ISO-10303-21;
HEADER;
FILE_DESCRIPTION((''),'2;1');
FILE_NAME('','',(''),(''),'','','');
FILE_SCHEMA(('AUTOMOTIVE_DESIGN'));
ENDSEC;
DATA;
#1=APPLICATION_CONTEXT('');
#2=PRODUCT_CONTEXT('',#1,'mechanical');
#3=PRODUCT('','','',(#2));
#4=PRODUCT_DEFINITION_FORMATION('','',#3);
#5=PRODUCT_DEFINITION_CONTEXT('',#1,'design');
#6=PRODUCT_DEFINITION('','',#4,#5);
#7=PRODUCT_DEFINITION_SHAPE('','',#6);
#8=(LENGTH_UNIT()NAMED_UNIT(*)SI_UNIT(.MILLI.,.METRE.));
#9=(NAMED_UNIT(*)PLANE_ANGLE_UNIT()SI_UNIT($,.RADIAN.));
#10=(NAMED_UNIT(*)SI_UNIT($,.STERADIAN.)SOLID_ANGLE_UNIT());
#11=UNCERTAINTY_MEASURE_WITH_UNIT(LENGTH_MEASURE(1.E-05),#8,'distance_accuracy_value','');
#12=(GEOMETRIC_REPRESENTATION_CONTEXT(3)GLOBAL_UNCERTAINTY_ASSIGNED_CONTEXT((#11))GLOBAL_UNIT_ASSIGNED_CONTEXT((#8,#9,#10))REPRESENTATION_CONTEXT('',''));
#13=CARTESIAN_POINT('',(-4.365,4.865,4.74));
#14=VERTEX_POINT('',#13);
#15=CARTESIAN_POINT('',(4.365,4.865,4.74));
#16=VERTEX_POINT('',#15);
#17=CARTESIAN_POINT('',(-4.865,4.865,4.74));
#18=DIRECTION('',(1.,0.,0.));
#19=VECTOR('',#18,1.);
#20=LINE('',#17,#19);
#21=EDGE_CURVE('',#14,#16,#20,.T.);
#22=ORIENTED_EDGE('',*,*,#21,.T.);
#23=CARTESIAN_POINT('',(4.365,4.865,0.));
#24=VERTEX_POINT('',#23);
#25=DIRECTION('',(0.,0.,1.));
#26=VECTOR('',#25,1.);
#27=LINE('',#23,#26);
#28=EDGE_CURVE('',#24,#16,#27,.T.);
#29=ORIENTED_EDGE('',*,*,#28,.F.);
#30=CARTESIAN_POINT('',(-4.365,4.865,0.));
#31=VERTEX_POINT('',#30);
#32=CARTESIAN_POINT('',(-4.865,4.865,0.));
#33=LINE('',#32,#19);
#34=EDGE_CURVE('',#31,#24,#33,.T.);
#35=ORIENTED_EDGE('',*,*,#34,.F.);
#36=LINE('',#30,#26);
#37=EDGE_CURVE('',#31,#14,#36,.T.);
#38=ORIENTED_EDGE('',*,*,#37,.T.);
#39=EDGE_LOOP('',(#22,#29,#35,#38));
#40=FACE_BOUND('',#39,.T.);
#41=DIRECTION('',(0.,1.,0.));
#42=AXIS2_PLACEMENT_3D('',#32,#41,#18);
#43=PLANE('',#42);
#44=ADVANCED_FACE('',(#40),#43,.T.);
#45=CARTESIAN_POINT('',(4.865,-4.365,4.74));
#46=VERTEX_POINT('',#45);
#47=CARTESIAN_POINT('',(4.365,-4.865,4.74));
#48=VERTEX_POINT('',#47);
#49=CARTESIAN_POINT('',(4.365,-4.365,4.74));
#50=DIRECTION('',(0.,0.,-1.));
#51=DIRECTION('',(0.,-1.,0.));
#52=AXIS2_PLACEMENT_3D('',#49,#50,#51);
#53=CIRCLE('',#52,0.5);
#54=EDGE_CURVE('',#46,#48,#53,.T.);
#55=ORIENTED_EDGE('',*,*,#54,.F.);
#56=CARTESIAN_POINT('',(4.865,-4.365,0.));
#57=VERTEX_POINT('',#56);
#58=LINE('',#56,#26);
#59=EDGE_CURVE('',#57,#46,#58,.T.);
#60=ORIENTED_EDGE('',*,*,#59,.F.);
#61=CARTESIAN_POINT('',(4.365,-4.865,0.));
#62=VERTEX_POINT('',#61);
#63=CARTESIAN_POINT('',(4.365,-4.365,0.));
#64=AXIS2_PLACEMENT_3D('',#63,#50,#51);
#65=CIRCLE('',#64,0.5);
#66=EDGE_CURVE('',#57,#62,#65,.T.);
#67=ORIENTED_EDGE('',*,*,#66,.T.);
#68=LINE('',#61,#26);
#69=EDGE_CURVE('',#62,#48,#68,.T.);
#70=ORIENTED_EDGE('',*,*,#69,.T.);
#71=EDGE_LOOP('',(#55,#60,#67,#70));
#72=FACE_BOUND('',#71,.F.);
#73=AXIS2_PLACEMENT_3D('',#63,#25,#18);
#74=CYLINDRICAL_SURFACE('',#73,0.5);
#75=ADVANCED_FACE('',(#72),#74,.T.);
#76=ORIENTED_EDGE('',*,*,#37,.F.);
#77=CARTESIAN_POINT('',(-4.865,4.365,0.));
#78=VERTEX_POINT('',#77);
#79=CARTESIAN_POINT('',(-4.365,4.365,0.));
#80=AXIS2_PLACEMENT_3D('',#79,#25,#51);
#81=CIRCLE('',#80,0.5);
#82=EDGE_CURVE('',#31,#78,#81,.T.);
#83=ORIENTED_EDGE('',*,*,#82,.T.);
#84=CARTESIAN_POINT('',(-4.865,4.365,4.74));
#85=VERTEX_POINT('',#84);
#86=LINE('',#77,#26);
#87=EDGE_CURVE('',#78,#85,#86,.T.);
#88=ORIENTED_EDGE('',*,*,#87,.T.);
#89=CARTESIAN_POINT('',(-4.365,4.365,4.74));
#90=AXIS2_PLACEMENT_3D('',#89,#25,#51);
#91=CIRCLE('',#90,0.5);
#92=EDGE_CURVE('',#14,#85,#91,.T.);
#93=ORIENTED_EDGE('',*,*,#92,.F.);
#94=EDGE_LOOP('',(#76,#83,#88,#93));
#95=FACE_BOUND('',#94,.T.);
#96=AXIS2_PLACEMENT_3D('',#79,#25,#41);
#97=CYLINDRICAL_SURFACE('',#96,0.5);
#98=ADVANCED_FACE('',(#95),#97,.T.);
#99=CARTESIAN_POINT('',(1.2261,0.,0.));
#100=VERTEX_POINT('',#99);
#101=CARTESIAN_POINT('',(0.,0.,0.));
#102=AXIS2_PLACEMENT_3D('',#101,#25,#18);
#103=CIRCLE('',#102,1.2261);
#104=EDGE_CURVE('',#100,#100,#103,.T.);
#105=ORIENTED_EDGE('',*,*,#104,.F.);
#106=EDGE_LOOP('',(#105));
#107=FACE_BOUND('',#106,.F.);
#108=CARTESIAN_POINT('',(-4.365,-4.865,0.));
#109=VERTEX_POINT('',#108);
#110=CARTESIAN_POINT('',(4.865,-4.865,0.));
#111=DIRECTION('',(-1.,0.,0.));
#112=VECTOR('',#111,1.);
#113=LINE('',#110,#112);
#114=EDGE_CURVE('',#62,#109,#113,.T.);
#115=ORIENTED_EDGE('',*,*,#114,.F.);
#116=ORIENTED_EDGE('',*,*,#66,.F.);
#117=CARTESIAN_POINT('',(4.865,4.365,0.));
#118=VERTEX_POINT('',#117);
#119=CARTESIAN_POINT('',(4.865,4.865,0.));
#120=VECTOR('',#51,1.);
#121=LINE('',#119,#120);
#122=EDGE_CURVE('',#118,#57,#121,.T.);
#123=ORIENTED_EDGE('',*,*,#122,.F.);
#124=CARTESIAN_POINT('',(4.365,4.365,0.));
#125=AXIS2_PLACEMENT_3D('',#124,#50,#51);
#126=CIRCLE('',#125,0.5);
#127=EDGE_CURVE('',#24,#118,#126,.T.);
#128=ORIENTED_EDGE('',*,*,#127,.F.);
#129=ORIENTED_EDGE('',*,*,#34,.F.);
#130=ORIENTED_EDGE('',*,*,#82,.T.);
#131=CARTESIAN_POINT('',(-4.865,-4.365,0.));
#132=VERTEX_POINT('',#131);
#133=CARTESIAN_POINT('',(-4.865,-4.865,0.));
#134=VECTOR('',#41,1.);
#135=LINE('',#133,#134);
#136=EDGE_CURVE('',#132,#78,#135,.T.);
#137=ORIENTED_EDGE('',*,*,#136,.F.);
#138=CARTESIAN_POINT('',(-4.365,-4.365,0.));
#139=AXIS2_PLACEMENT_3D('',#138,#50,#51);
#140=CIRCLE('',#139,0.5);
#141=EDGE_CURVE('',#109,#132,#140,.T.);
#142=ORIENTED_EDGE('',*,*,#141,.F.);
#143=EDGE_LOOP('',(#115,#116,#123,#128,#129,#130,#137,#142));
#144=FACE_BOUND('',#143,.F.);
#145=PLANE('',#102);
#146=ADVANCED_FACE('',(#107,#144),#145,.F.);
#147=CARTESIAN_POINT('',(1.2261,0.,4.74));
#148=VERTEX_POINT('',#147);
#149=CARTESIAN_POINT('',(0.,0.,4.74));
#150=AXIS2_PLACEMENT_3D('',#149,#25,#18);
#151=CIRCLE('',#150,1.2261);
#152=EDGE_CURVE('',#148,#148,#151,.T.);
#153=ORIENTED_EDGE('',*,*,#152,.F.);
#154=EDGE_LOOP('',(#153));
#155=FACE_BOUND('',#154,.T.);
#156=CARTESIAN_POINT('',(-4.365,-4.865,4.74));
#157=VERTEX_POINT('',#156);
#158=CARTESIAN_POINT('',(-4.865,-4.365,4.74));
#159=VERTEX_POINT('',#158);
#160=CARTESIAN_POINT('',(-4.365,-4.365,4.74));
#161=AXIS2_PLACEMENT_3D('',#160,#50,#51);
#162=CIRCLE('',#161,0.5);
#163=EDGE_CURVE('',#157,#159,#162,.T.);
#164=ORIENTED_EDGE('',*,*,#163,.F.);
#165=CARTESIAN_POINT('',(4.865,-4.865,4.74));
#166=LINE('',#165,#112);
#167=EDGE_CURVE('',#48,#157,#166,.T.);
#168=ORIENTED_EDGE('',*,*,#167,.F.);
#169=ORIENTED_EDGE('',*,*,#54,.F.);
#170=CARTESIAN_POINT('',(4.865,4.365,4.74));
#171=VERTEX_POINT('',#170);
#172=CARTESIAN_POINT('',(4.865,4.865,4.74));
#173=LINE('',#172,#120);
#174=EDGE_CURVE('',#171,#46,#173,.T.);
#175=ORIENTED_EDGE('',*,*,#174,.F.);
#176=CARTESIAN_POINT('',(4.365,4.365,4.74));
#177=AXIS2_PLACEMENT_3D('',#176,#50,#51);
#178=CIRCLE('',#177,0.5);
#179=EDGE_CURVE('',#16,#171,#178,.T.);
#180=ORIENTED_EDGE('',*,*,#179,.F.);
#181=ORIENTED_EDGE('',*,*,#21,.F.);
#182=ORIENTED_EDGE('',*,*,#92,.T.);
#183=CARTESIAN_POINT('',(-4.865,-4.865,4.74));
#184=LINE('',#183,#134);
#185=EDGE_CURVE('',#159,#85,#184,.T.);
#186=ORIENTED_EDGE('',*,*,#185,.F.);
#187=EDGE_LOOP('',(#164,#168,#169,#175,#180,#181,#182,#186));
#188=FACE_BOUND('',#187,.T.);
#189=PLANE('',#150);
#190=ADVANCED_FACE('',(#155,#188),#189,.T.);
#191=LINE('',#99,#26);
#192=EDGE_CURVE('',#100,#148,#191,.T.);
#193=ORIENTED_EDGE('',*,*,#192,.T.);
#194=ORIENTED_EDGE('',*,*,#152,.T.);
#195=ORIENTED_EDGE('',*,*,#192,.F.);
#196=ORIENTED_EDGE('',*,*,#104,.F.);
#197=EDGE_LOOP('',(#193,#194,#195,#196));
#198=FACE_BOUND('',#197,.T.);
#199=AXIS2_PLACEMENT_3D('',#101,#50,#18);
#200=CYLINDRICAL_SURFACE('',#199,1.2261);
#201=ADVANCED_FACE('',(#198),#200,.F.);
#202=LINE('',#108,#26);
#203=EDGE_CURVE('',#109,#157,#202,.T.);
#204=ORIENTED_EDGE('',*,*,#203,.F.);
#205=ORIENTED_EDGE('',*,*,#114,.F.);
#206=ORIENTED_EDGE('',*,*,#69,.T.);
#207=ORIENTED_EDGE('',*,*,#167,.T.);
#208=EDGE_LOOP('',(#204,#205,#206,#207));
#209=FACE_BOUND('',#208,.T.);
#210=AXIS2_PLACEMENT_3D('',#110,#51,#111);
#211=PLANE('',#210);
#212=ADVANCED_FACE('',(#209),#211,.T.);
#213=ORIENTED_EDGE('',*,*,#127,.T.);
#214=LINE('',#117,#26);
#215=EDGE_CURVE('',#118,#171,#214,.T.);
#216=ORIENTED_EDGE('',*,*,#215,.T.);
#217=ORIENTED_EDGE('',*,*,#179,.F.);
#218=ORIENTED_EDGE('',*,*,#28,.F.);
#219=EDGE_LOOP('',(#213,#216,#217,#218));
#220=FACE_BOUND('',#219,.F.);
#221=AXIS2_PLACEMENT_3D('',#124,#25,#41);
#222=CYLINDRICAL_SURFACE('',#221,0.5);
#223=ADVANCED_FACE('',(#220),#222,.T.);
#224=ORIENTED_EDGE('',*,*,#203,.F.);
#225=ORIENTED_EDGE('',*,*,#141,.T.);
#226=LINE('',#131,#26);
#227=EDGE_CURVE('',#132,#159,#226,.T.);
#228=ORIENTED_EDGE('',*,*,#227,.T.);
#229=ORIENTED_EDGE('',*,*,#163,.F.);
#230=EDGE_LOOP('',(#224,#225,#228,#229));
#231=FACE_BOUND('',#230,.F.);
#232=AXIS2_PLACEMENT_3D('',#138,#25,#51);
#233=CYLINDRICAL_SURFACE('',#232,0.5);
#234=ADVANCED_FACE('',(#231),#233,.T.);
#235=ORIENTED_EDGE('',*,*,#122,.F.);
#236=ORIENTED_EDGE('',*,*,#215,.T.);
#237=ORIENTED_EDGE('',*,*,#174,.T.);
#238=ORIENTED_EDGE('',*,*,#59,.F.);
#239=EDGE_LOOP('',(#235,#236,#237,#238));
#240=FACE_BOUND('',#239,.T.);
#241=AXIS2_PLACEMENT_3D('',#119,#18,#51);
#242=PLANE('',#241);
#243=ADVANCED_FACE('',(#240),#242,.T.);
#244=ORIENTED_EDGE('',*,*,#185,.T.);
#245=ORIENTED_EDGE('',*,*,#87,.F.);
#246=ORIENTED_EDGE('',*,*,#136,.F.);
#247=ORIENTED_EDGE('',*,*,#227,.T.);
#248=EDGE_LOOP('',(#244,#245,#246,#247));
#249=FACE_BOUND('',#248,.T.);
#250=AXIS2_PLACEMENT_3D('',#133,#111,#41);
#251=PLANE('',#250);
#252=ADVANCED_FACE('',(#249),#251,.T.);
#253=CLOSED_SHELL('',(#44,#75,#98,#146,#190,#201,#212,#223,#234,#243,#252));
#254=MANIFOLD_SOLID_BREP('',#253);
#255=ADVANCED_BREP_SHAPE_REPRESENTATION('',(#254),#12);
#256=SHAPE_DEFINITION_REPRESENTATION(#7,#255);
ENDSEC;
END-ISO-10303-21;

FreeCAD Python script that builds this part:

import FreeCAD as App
import Part
import Sketcher

V = App.Vector
Q = App.Units.Quantity


def edges_at(feature, points):
    """Names of the edges that pass closest to the given points."""
    edges = feature.Shape.Edges
    near = lambda p: min(range(len(edges)), key=lambda i: edges[i].distToShape(Part.Vertex(*p))[0])
    return sorted({f"Edge{near(p) + 1}" for p in points})


def add_polygon(sketch, points):
    """Adds a closed chain of lines whose ends are joined by coincident constraints."""
    first, n = sketch.GeometryCount, len(points)
    for a, b in zip(points, points[1:] + points[:1]):
        sketch.addGeometry(Part.LineSegment(App.Vector(*a, 0), App.Vector(*b, 0)), False)
    for i in range(n):
        sketch.addConstraint(Sketcher.Constraint("Coincident", first + i, 2, first + (i + 1) % n, 1))

doc = App.newDocument("Part")
body = doc.addObject("PartDesign::Body", "Body")

# Sketch on XY plane
sketch1 = body.newObject("Sketcher::SketchObject", "Sketch")
sketch1.AttachmentSupport = (doc.getObject("XY_Plane"), [""])
sketch1.MapMode = "FlatFace"
add_polygon(sketch1, [(4.9, 4.9), (-4.9, 4.9), (-4.9, -4.9), (4.9, -4.9)])  # lines 0-3
sketch1.addGeometry(Part.Circle(V(0, 0, 0), V(0, 0, 1), 1.2), False)  # 4
sketch1.addConstraint(Sketcher.Constraint("Horizontal", 0))
sketch1.addConstraint(Sketcher.Constraint("Vertical", 1))
sketch1.addConstraint(Sketcher.Constraint("Horizontal", 2))
sketch1.addConstraint(Sketcher.Constraint("Vertical", 3))
sketch1.addConstraint(Sketcher.Constraint("Coincident", 4, 3, -1, 1))
sketch1.addConstraint(Sketcher.Constraint("Symmetric", 0, 2, 2, 2, -1, 1))
sketch1.addConstraint(Sketcher.Constraint("Equal", 2, 1))
sketch1.addConstraint(Sketcher.Constraint("DistanceX", 0, 2, 0, 1, Q("9.73 mm")))
sketch1.addConstraint(Sketcher.Constraint("Diameter", 4, Q("2.4522 mm")))
pad1 = body.newObject("PartDesign::Pad", "Pad")
pad1.Profile = sketch1
pad1.Length = 4.74
doc.recompute()

fillet = body.newObject("PartDesign::Fillet", "Fillet")
fillet.Base = (pad1, edges_at(pad1, [
    (-4.865, -4.865, 2.37),
    (-4.865, 4.865, 2.37),
    (4.865, -4.865, 2.37),
    (4.865, 4.865, 2.37),
]))
fillet.Radius = 0.5

doc.recompute()
